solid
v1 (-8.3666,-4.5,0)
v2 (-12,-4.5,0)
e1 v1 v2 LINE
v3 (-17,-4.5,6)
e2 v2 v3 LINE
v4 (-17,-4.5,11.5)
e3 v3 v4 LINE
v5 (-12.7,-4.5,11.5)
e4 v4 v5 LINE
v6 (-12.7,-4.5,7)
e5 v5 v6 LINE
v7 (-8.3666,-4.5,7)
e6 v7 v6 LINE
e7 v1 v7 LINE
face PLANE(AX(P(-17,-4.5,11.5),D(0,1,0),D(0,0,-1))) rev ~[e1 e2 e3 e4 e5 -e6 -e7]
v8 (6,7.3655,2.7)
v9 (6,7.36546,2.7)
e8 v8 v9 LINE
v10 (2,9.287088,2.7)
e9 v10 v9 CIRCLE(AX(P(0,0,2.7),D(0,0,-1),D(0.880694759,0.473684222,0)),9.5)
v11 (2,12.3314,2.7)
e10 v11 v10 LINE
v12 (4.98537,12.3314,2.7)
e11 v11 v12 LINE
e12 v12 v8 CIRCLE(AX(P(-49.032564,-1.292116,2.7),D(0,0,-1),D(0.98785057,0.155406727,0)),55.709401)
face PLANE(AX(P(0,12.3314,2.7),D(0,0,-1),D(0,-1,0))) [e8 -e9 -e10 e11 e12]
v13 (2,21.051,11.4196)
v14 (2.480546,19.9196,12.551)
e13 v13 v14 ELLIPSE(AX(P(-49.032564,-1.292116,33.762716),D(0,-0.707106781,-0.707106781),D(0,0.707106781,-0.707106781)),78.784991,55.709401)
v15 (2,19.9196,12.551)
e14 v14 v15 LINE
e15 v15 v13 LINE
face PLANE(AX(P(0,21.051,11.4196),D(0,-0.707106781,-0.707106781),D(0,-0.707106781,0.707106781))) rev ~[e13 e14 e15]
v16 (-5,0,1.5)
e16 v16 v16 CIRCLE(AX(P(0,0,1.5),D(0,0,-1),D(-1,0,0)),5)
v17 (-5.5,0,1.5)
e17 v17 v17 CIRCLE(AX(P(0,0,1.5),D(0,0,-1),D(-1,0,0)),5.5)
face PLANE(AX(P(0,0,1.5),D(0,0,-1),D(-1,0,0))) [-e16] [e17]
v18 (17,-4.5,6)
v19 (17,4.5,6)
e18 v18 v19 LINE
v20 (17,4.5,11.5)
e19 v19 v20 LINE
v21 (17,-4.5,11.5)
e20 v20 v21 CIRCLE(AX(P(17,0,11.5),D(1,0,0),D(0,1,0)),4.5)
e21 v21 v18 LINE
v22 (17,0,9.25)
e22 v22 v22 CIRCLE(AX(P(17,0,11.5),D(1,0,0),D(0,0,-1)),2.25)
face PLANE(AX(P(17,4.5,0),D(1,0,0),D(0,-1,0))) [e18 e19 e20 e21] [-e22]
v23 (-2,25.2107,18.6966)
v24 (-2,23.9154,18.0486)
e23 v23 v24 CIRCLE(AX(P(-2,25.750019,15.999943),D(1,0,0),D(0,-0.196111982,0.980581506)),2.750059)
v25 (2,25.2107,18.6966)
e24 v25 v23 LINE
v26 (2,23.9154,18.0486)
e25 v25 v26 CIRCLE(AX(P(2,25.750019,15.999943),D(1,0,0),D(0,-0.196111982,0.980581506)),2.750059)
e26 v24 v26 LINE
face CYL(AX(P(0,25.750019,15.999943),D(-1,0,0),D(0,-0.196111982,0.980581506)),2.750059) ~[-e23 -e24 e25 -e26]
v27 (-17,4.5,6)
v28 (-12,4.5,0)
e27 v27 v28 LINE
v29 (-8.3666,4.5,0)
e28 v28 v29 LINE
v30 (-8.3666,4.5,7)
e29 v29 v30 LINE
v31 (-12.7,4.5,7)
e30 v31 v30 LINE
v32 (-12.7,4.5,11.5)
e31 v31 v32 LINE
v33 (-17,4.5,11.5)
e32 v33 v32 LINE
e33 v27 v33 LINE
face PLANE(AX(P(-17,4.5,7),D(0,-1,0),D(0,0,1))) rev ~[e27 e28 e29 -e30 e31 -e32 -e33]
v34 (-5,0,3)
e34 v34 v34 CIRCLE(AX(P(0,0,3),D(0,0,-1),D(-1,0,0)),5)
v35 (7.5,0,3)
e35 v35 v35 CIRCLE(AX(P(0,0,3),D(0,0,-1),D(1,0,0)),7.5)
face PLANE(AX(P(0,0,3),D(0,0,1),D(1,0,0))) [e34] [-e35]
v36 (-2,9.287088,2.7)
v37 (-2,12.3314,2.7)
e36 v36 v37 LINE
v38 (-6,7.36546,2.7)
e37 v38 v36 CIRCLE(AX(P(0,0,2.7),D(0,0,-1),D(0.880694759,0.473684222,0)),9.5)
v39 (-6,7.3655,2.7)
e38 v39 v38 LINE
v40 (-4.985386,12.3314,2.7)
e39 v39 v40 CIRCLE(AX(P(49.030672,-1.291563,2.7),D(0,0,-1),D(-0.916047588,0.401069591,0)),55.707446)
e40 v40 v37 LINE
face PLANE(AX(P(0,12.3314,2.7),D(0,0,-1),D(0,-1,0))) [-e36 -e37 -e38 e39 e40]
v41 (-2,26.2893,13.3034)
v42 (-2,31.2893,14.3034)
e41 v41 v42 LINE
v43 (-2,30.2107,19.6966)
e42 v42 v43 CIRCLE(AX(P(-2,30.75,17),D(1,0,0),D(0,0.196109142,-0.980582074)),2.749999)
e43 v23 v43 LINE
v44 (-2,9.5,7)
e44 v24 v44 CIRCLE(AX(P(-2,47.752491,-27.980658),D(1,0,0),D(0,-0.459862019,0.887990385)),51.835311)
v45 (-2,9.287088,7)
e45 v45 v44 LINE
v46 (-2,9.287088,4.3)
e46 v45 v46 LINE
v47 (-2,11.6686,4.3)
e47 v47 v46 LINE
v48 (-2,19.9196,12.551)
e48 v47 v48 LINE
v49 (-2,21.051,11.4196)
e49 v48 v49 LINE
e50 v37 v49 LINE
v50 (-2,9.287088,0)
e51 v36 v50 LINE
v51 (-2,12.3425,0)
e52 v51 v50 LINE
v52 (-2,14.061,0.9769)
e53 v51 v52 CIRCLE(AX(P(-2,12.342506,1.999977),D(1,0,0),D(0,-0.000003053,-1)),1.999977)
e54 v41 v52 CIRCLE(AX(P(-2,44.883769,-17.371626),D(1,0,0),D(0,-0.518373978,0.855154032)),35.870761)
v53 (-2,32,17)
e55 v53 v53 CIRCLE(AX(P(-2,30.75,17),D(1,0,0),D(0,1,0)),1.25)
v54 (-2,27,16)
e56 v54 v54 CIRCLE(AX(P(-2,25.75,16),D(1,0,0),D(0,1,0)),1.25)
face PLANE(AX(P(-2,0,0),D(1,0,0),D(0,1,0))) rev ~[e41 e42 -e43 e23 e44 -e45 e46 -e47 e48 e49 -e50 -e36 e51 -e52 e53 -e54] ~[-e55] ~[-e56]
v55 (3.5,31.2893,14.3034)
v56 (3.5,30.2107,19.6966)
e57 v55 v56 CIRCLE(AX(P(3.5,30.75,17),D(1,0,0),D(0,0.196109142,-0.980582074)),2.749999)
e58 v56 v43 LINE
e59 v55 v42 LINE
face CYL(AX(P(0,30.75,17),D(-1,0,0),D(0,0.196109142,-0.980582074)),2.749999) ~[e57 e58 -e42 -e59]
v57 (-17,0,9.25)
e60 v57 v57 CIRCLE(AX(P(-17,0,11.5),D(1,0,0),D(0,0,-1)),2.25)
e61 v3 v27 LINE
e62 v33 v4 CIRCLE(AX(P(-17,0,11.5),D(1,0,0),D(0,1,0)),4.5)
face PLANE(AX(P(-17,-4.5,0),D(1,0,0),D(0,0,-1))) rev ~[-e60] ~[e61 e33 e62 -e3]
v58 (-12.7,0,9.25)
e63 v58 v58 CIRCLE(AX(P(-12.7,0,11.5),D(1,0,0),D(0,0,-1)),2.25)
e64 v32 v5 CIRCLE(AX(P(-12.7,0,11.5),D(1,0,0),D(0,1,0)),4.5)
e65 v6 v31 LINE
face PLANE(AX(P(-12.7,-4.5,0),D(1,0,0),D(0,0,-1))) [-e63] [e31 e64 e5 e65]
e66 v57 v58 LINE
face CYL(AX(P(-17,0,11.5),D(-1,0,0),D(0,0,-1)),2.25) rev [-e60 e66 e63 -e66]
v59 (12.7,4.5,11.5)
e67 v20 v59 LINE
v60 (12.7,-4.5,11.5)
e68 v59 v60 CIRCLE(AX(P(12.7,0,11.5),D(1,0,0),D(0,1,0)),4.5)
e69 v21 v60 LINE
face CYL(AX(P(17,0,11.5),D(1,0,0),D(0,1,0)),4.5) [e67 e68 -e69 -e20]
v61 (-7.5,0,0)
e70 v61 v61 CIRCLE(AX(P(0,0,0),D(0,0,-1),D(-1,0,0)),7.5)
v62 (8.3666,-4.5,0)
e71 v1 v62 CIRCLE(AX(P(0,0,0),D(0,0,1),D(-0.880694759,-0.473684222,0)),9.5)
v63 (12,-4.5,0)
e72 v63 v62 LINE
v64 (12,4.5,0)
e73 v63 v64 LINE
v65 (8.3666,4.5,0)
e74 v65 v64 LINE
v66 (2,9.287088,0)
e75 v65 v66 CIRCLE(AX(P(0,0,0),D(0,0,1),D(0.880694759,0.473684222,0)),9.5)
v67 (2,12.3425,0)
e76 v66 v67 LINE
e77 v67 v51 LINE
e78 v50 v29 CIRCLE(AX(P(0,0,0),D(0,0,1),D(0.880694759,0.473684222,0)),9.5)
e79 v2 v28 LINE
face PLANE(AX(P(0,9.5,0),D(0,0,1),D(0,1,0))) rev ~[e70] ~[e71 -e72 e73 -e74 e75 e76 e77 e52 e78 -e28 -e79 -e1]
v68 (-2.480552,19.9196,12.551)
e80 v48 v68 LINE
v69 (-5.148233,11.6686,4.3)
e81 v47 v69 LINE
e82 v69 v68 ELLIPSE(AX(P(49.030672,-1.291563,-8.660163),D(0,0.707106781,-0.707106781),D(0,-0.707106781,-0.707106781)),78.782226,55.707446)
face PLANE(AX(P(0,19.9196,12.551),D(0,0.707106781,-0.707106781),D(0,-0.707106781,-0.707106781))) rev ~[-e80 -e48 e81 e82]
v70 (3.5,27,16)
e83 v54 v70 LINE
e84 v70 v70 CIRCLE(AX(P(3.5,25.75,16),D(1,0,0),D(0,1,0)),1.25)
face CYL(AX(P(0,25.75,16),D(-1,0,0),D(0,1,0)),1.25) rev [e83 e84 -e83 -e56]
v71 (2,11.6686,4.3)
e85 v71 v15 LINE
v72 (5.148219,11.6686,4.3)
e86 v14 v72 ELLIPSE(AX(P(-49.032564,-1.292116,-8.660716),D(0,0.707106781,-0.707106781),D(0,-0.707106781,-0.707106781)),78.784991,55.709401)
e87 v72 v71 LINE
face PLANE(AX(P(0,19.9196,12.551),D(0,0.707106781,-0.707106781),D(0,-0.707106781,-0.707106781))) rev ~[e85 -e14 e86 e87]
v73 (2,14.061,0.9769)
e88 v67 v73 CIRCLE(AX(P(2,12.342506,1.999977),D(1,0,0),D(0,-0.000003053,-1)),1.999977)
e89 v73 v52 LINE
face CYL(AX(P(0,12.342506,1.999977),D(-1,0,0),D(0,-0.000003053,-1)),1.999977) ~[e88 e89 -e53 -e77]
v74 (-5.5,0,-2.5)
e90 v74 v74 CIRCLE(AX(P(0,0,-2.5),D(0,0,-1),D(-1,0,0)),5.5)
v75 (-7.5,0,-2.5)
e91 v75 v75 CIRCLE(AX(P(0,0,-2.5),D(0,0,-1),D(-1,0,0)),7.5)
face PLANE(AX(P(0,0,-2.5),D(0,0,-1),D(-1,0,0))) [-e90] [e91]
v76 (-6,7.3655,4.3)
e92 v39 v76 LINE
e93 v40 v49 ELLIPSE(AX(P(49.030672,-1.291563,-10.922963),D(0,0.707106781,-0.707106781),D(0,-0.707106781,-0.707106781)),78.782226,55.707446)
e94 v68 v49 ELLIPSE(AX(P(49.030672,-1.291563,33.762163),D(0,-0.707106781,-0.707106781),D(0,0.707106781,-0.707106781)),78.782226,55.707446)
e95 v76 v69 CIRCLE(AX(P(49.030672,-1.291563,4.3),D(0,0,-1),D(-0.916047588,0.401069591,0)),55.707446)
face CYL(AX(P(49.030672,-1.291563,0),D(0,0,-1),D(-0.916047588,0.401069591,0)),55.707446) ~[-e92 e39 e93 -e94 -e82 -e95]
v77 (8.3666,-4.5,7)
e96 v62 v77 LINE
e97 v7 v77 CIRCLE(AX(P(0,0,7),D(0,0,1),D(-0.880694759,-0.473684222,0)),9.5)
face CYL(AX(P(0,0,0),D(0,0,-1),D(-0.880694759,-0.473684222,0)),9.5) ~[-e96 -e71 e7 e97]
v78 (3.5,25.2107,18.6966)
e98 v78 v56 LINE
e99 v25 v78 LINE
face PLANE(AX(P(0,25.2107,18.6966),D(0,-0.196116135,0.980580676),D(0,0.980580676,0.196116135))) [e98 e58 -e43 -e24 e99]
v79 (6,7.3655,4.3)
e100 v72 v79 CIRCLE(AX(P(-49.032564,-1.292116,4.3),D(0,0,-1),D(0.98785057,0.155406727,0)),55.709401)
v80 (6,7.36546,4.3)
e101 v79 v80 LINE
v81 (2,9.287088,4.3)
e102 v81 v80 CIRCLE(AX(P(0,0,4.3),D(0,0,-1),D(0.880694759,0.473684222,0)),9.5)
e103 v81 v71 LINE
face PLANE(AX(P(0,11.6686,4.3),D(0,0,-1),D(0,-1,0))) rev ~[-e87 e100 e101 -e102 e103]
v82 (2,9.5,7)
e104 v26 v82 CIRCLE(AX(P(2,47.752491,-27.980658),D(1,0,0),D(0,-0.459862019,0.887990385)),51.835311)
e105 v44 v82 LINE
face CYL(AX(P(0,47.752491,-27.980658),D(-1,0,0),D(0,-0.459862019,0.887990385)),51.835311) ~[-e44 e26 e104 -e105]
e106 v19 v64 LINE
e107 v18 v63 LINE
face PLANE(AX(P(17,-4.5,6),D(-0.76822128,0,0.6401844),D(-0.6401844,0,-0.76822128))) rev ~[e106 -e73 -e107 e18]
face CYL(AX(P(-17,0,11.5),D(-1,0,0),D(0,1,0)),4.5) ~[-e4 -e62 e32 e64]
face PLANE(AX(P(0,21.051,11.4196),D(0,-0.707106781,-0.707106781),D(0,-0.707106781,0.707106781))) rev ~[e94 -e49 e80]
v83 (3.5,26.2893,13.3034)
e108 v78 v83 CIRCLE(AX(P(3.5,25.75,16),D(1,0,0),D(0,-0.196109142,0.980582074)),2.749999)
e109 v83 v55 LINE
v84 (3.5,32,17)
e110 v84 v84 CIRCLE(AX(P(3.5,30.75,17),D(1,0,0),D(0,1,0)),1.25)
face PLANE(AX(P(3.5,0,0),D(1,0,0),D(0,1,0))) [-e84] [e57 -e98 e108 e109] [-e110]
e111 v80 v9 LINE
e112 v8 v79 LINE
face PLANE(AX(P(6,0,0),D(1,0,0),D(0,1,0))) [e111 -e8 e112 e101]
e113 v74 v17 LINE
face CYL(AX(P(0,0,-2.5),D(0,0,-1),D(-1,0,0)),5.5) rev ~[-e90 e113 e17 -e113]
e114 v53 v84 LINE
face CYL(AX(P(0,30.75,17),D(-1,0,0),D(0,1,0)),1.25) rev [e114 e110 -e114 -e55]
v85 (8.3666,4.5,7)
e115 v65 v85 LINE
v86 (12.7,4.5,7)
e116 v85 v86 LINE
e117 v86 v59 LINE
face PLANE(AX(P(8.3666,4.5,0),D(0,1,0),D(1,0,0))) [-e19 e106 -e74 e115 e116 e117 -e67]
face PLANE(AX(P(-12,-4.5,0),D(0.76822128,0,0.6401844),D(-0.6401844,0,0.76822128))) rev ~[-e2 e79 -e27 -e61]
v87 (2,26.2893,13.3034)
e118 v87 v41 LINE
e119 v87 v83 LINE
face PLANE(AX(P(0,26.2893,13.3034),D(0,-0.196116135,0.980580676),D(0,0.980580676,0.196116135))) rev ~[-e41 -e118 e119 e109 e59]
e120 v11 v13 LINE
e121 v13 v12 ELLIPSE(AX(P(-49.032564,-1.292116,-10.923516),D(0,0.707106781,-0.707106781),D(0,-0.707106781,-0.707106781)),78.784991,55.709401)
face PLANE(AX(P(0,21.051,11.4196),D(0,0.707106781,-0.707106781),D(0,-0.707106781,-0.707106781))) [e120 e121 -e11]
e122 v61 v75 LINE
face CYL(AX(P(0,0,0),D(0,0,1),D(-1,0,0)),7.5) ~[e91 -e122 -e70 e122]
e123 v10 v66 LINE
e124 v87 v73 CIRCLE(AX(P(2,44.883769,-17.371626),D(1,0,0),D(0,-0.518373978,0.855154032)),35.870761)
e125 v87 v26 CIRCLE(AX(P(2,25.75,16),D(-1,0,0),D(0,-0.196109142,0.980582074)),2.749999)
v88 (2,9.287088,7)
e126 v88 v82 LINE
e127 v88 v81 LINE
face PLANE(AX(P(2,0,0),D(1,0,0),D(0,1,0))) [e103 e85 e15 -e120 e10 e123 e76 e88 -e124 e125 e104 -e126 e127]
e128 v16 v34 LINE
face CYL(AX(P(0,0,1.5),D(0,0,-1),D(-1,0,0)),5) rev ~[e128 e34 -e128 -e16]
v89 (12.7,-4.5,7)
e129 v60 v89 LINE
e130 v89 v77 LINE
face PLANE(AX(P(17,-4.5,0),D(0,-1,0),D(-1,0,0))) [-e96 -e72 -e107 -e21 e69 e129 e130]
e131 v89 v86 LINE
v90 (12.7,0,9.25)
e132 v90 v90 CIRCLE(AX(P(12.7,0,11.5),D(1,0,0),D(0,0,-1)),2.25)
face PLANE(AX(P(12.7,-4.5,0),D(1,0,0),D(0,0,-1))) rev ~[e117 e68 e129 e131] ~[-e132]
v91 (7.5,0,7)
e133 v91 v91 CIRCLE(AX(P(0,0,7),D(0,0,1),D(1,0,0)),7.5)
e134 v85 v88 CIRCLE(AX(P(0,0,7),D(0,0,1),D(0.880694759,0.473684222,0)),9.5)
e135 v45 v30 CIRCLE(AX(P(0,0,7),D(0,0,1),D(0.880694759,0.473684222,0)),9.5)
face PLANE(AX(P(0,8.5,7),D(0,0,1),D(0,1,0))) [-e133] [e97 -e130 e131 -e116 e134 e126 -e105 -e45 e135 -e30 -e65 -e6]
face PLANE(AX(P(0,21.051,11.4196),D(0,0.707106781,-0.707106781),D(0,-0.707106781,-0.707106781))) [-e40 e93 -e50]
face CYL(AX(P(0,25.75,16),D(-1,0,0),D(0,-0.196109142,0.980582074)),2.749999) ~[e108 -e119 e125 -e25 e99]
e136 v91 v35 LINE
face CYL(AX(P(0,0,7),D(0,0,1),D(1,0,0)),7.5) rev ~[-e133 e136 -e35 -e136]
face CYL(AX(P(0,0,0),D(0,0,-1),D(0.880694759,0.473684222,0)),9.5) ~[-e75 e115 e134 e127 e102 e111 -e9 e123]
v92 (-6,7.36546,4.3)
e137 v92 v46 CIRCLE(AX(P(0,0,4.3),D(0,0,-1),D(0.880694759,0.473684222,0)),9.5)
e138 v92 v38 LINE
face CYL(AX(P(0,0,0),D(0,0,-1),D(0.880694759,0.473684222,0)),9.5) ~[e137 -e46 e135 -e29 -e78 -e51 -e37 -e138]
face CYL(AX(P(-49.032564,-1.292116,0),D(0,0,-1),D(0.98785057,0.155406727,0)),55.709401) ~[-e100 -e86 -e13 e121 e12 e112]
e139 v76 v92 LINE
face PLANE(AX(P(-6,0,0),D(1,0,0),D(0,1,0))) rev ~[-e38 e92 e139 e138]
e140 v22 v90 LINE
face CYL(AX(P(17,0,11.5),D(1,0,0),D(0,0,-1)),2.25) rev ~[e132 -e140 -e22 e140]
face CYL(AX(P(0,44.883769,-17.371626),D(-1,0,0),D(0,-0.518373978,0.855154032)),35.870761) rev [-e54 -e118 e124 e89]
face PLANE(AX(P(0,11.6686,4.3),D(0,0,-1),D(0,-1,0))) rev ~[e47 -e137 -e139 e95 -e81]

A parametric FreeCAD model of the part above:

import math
import FreeCAD as App
import Part
import Sketcher
from FreeCAD import Vector
Q = App.Units.Quantity


def add_polygon(sketch, points):
    """Adds a closed chain of lines whose ends are joined by coincident constraints."""
    first, n = sketch.GeometryCount, len(points)
    for a, b in zip(points, points[1:] + points[:1]):
        sketch.addGeometry(Part.LineSegment(App.Vector(*a, 0), App.Vector(*b, 0)), False)
    for i in range(n):
        sketch.addConstraint(Sketcher.Constraint("Coincident", first + i, 2, first + (i + 1) % n, 1))

doc = App.newDocument("Part")
body = doc.addObject("PartDesign::Body", "Body")
body.AllowCompound = True

sketch1 = doc.addObject("Sketcher::SketchObject", "Sketch")
body.addObject(sketch1)
sketch1.AttachmentSupport = (doc.XY_Plane, [""])
sketch1.MapMode = "FlatFace"
sketch1.addGeometry(Part.LineSegment(Vector(17, -4.5, 0), Vector(17, 4.5, 0)), False)
sketch1.addGeometry(Part.LineSegment(Vector(17, 4.5, 0), Vector(8.3666, 4.5, 0)), False)
sketch1.addGeometry(Part.ArcOfCircle(Part.Circle(Vector(0, 0, 0), Vector(0, 0, 1), 9.5), math.radians(28.273714), math.radians(151.726286)), False)
sketch1.addGeometry(Part.LineSegment(Vector(-8.3666, 4.5, 0), Vector(-17, 4.5, 0)), False)
sketch1.addGeometry(Part.LineSegment(Vector(-17, 4.5, 0), Vector(-17, -4.5, 0)), False)
sketch1.addGeometry(Part.LineSegment(Vector(-17, -4.5, 0), Vector(-8.3666, -4.5, 0)), False)
sketch1.addGeometry(Part.ArcOfCircle(Part.Circle(Vector(0, 0, 0), Vector(0, 0, 1), 9.5), math.radians(-151.726286), math.radians(-28.273714)), False)
sketch1.addGeometry(Part.LineSegment(Vector(8.3666, -4.5, 0), Vector(17, -4.5, 0)), False)
sketch1.addConstraint(Sketcher.Constraint("Coincident", 0, 2, 1, 1))
sketch1.addConstraint(Sketcher.Constraint("Coincident", 1, 2, 2, 1))
sketch1.addConstraint(Sketcher.Constraint("Coincident", 2, 2, 3, 1))
sketch1.addConstraint(Sketcher.Constraint("Coincident", 3, 2, 4, 1))
sketch1.addConstraint(Sketcher.Constraint("Coincident", 4, 2, 5, 1))
sketch1.addConstraint(Sketcher.Constraint("Coincident", 5, 2, 6, 1))
sketch1.addConstraint(Sketcher.Constraint("Coincident", 6, 2, 7, 1))
sketch1.addConstraint(Sketcher.Constraint("Coincident", 7, 2, 0, 1))
sketch1.addConstraint(Sketcher.Constraint("Vertical", 0))
sketch1.addConstraint(Sketcher.Constraint("Horizontal", 1))
sketch1.addConstraint(Sketcher.Constraint("Horizontal", 3))
sketch1.addConstraint(Sketcher.Constraint("Vertical", 4))
sketch1.addConstraint(Sketcher.Constraint("Horizontal", 5))
sketch1.addConstraint(Sketcher.Constraint("Horizontal", 7))
sketch1.addConstraint(Sketcher.Constraint("Coincident", 2, 3, -1, 1))
sketch1.addConstraint(Sketcher.Constraint("Coincident", 6, 3, -1, 1))
sketch1.addConstraint(Sketcher.Constraint("Equal", 2, 6))
sketch1.addConstraint(Sketcher.Constraint("Symmetric", 0, 2, 4, 2, -1, 1))
sketch1.addConstraint(Sketcher.Constraint("Horizontal", 1, 2, 2, 2))
sketch1.addConstraint(Sketcher.Constraint("Horizontal", 5, 2, 6, 2))
sketch1.addConstraint(Sketcher.Constraint("Radius", 2, 9.5))
sketch1.addConstraint(Sketcher.Constraint("DistanceY", 0, 1, 0, 2, 9.0))
sketch1.addConstraint(Sketcher.Constraint("DistanceX", 3, 2, 0, 2, 34.0))
pad1 = doc.addObject("PartDesign::Pad", "Pad")
body.addObject(pad1)
pad1.Profile = sketch1
pad1.Length = 7

sketch2 = doc.addObject("Sketcher::SketchObject", "Sketch001")
body.addObject(sketch2)
sketch2.AttachmentSupport = (doc.YZ_Plane, [""])
sketch2.MapMode = "FlatFace"
sketch2.AttachmentOffset = App.Placement(Vector(0, 0, 17), App.Rotation())
sketch2.addGeometry(Part.LineSegment(Vector(4.5, 7, 0), Vector(4.5, 11.5, 0)), False)
sketch2.addGeometry(Part.ArcOfCircle(Part.Circle(Vector(0, 11.5, 0), Vector(0, 0, 1), 4.5), math.radians(0), math.radians(180)), False)
sketch2.addGeometry(Part.LineSegment(Vector(-4.5, 11.5, 0), Vector(-4.5, 7, 0)), False)
sketch2.addGeometry(Part.LineSegment(Vector(-4.5, 7, 0), Vector(4.5, 7, 0)), False)
sketch2.addGeometry(Part.Circle(Vector(0, 11.5, 0), Vector(0, 0, 1), 2.25), False)
sketch2.addConstraint(Sketcher.Constraint("Tangent", 0, 2, 1, 1))
sketch2.addConstraint(Sketcher.Constraint("Tangent", 1, 2, 2, 1))
sketch2.addConstraint(Sketcher.Constraint("Coincident", 2, 2, 3, 1))
sketch2.addConstraint(Sketcher.Constraint("Coincident", 3, 2, 0, 1))
sketch2.addConstraint(Sketcher.Constraint("Vertical", 0))
sketch2.addConstraint(Sketcher.Constraint("Vertical", 2))
sketch2.addConstraint(Sketcher.Constraint("Horizontal", 3))
sketch2.addConstraint(Sketcher.Constraint("Coincident", 4, 3, 1, 3))
sketch2.addConstraint(Sketcher.Constraint("PointOnObject", 1, 3, -2))
sketch2.addConstraint(Sketcher.Constraint("Diameter", 4, 4.5))
sketch2.addConstraint(Sketcher.Constraint("Radius", 1, 4.5))
sketch2.addConstraint(Sketcher.Constraint("DistanceY", 0, 1, 0, 2, 4.5))
sketch2.addConstraint(Sketcher.Constraint("DistanceY", -1, 1, 2, 2, 7.0))
pad2 = doc.addObject("PartDesign::Pad", "Pad001")
body.addObject(pad2)
pad2.Profile = sketch2
pad2.Length = 4.3
pad2.Reversed = True

sketch3 = doc.addObject("Sketcher::SketchObject", "Sketch002")
body.addObject(sketch3)
sketch3.AttachmentSupport = (doc.YZ_Plane, [""])
sketch3.MapMode = "FlatFace"
sketch3.AttachmentOffset = App.Placement(Vector(0, 0, -17), App.Rotation())
sketch3.addGeometry(Part.LineSegment(Vector(4.5, 7, 0), Vector(4.5, 11.5, 0)), False)
sketch3.addGeometry(Part.ArcOfCircle(Part.Circle(Vector(0, 11.5, 0), Vector(0, 0, 1), 4.5), math.radians(0), math.radians(180)), False)
sketch3.addGeometry(Part.LineSegment(Vector(-4.5, 11.5, 0), Vector(-4.5, 7, 0)), False)
sketch3.addGeometry(Part.LineSegment(Vector(-4.5, 7, 0), Vector(4.5, 7, 0)), False)
sketch3.addGeometry(Part.Circle(Vector(0, 11.5, 0), Vector(0, 0, 1), 2.25), False)
sketch3.addConstraint(Sketcher.Constraint("Tangent", 0, 2, 1, 1))
sketch3.addConstraint(Sketcher.Constraint("Tangent", 1, 2, 2, 1))
sketch3.addConstraint(Sketcher.Constraint("Coincident", 2, 2, 3, 1))
sketch3.addConstraint(Sketcher.Constraint("Coincident", 3, 2, 0, 1))
sketch3.addConstraint(Sketcher.Constraint("Vertical", 0))
sketch3.addConstraint(Sketcher.Constraint("Vertical", 2))
sketch3.addConstraint(Sketcher.Constraint("Horizontal", 3))
sketch3.addConstraint(Sketcher.Constraint("Coincident", 4, 3, 1, 3))
sketch3.addConstraint(Sketcher.Constraint("PointOnObject", 1, 3, -2))
sketch3.addConstraint(Sketcher.Constraint("Diameter", 4, 4.5))
sketch3.addConstraint(Sketcher.Constraint("Radius", 1, 4.5))
sketch3.addConstraint(Sketcher.Constraint("DistanceY", 0, 1, 0, 2, 4.5))
sketch3.addConstraint(Sketcher.Constraint("DistanceY", -1, 1, 2, 2, 7.0))
pad3 = doc.addObject("PartDesign::Pad", "Pad002")
body.addObject(pad3)
pad3.Profile = sketch3
pad3.Length = 4.3

sketch4 = doc.addObject("Sketcher::SketchObject", "Sketch003")
body.addObject(sketch4)
sketch4.AttachmentSupport = (doc.XZ_Plane, [""])
sketch4.MapMode = "FlatFace"
sketch4.AttachmentOffset = App.Placement(Vector(0, 0, 4.5), App.Rotation())
add_polygon(sketch4, [(-12, 0), (-17, 6), (-17, 0)])
add_polygon(sketch4, [(17, 6), (12, 0), (17, 0)])
sketch4.addConstraint(Sketcher.Constraint("Vertical", 1))
sketch4.addConstraint(Sketcher.Constraint("Horizontal", 2))
sketch4.addConstraint(Sketcher.Constraint("Horizontal", 4))
sketch4.addConstraint(Sketcher.Constraint("Vertical", 5))
sketch4.addConstraint(Sketcher.Constraint("Symmetric", 2, 2, 3, 2, -1, 1))
sketch4.addConstraint(Sketcher.Constraint("Symmetric", 1, 2, 4, 2, -2))
sketch4.addConstraint(Sketcher.Constraint("Horizontal", 0, 2, 5, 2))
sketch4.addConstraint(Sketcher.Constraint("DistanceX", 2, 1, 2, 2, 5.0))
sketch4.addConstraint(Sketcher.Constraint("DistanceY", 1, 2, 1, 1, 6.0))
sketch4.addConstraint(Sketcher.Constraint("DistanceX", 0, 2, -1, 1, 17.0))
pocket1 = doc.addObject("PartDesign::Pocket", "Pocket")
body.addObject(pocket1)
pocket1.Profile = sketch4
pocket1.Length = 9

sketch5 = doc.addObject("Sketcher::SketchObject", "Sketch004")
body.addObject(sketch5)
sketch5.AttachmentSupport = (doc.XY_Plane, [""])
sketch5.MapMode = "FlatFace"
sketch5.addGeometry(Part.Circle(Vector(0, 0, 0), Vector(0, 0, 1), 7.5), False)
sketch5.addConstraint(Sketcher.Constraint("Coincident", 0, 3, -1, 1))
sketch5.addConstraint(Sketcher.Constraint("Diameter", 0, 15.0))
pad4 = doc.addObject("PartDesign::Pad", "Pad003")
body.addObject(pad4)
pad4.Profile = sketch5
pad4.Length = 2.5
pad4.Reversed = True

sketch6 = doc.addObject("Sketcher::SketchObject", "Sketch005")
body.addObject(sketch6)
sketch6.AttachmentSupport = (doc.XY_Plane, [""])
sketch6.MapMode = "FlatFace"
sketch6.AttachmentOffset = App.Placement(Vector(0, 0, 7), App.Rotation())
sketch6.addGeometry(Part.Circle(Vector(0, 0, 0), Vector(0, 0, 1), 7.5), False)
sketch6.addConstraint(Sketcher.Constraint("Coincident", 0, 3, -1, 1))
sketch6.addConstraint(Sketcher.Constraint("Diameter", 0, 15.0))
pocket2 = doc.addObject("PartDesign::Pocket", "Pocket001")
body.addObject(pocket2)
pocket2.Profile = sketch6
pocket2.Length = 4

sketch7 = doc.addObject("Sketcher::SketchObject", "Sketch006")
body.addObject(sketch7)
sketch7.AttachmentSupport = (doc.XY_Plane, [""])
sketch7.MapMode = "FlatFace"
sketch7.AttachmentOffset = App.Placement(Vector(0, 0, -2.5), App.Rotation())
sketch7.addGeometry(Part.Circle(Vector(0, 0, 0), Vector(0, 0, 1), 5.5), False)
sketch7.addConstraint(Sketcher.Constraint("Coincident", 0, 3, -1, 1))
sketch7.addConstraint(Sketcher.Constraint("Diameter", 0, 11.0))
pocket3 = doc.addObject("PartDesign::Pocket", "Pocket002")
body.addObject(pocket3)
pocket3.Profile = sketch7
pocket3.Length = 4
pocket3.Reversed = True

sketch8 = doc.addObject("Sketcher::SketchObject", "Sketch007")
body.addObject(sketch8)
sketch8.AttachmentSupport = (doc.XY_Plane, [""])
sketch8.MapMode = "FlatFace"
sketch8.AttachmentOffset = App.Placement(Vector(0, 0, 1.5), App.Rotation())
sketch8.addGeometry(Part.Circle(Vector(0, 0, 0), Vector(0, 0, 1), 5), False)
sketch8.addConstraint(Sketcher.Constraint("Coincident", 0, 3, -1, 1))
sketch8.addConstraint(Sketcher.Constraint("Diameter", 0, 10.0))
pocket4 = doc.addObject("PartDesign::Pocket", "Pocket003")
body.addObject(pocket4)
pocket4.Profile = sketch8
pocket4.Type = "UpToFirst"
pocket4.Reversed = True

sketch9 = doc.addObject("Sketcher::SketchObject", "Sketch008")
body.addObject(sketch9)
sketch9.AttachmentSupport = (doc.YZ_Plane, [""])
sketch9.MapMode = "FlatFace"
sketch9.addGeometry(Part.LineSegment(Vector(26.2893, 13.3034, 0), Vector(31.2893, 14.3034, 0)), False)
sketch9.addGeometry(Part.ArcOfCircle(Part.Circle(Vector(30.75, 17, 0), Vector(0, 0, 1), 2.749999), math.radians(-78.690476), math.radians(101.309524)), False)
sketch9.addGeometry(Part.LineSegment(Vector(30.2107, 19.6966, 0), Vector(25.2107, 18.6966, 0)), False)
sketch9.addGeometry(Part.ArcOfCircle(Part.Circle(Vector(25.75, 16, 0), Vector(0, 0, 1), 2.749999), math.radians(101.309524), math.radians(131.845667)), False)
sketch9.addGeometry(Part.ArcOfCircle(Part.Circle(Vector(47.7522, -27.9802, 0), Vector(0, 0, 1), 51.834771), math.radians(117.378151), math.radians(137.558256)), False)
sketch9.addGeometry(Part.LineSegment(Vector(9.5, 7, 0), Vector(9.5, 0, 0)), False)
sketch9.addGeometry(Part.LineSegment(Vector(9.5, 0, 0), Vector(12.3425, 0, 0)), False)
sketch9.addGeometry(Part.ArcOfCircle(Part.Circle(Vector(12.3425, 2, 0), Vector(0, 0, 1), 2), math.radians(-90), math.radians(-30.767233)), False)
sketch9.addGeometry(Part.ArcOfCircle(Part.Circle(Vector(44.8843, -17.3723, 0), Vector(0, 0, 1), 35.871613), math.radians(121.223411), math.radians(149.234539)), False)
sketch9.addGeometry(Part.Circle(Vector(25.75, 16, 0), Vector(0, 0, 1), 1.25), False)
sketch9.addGeometry(Part.Circle(Vector(30.75, 17, 0), Vector(0, 0, 1), 1.25), False)
sketch9.addConstraint(Sketcher.Constraint("Tangent", 0, 2, 1, 1))
sketch9.addConstraint(Sketcher.Constraint("Tangent", 1, 2, 2, 1))
sketch9.addConstraint(Sketcher.Constraint("Tangent", 2, 2, 3, 1))
sketch9.addConstraint(Sketcher.Constraint("Coincident", 3, 2, 4, 1))
sketch9.addConstraint(Sketcher.Constraint("Coincident", 4, 2, 5, 1))
sketch9.addConstraint(Sketcher.Constraint("Coincident", 5, 2, 6, 1))
sketch9.addConstraint(Sketcher.Constraint("Tangent", 6, 2, 7, 1))
sketch9.addConstraint(Sketcher.Constraint("Tangent", 7, 2, 8, 2))
sketch9.addConstraint(Sketcher.Constraint("Coincident", 8, 1, 0, 1))
sketch9.addConstraint(Sketcher.Constraint("Vertical", 5))
sketch9.addConstraint(Sketcher.Constraint("Horizontal", 6))
sketch9.addConstraint(Sketcher.Constraint("Coincident", 9, 3, 3, 3))
sketch9.addConstraint(Sketcher.Constraint("Coincident", 10, 3, 1, 3))
sketch9.addConstraint(Sketcher.Constraint("Equal", 1, 3))
sketch9.addConstraint(Sketcher.Constraint("Equal", 9, 10))
sketch9.addConstraint(Sketcher.Constraint("PointOnObject", 5, 2, -1))
sketch9.addConstraint(Sketcher.Constraint("Parallel", 0, 2))
sketch9.addConstraint(Sketcher.Constraint("Equal", 0, 2))
sketch9.addConstraint(Sketcher.Constraint("Radius", 7, 2.0))
sketch9.addConstraint(Sketcher.Constraint("Diameter", 9, 2.5))
sketch9.addConstraint(Sketcher.Constraint("DistanceY", 5, 2, 5, 1, 7.0))
sketch9.addConstraint(Sketcher.Constraint("Radius", 1, 2.75))
sketch9.addConstraint(Sketcher.Constraint("DistanceY", -1, 1, 1, 3, 17.0))
sketch9.addConstraint(Sketcher.Constraint("DistanceY", -1, 1, 3, 3, 16.0))
sketch9.addConstraint(Sketcher.Constraint("DistanceX", -1, 1, 4, 2, 9.5))
sketch9.addConstraint(Sketcher.Constraint("Radius", 4, 51.8348))
sketch9.addConstraint(Sketcher.Constraint("Radius", 8, 35.8716))
sketch9.addConstraint(Sketcher.Constraint("DistanceX", -1, 1, 1, 3, 30.75))
sketch9.addConstraint(Sketcher.Constraint("DistanceX", -1, 1, 3, 3, 25.75))
sketch9.addConstraint(Sketcher.Constraint("DistanceX", 6, 1, 6, 2, 2.8425))
sketch9.addConstraint(Sketcher.Constraint("DistanceX", 8, 3, 4, 3, 2.868))
pad5 = doc.addObject("PartDesign::Pad", "Pad004")
body.addObject(pad5)
pad5.Profile = sketch9
pad5.Length = 4
pad5.Midplane = True

sketch10 = doc.addObject("Sketcher::SketchObject", "Sketch009")
body.addObject(sketch10)
sketch10.AttachmentSupport = (doc.YZ_Plane, [""])
sketch10.MapMode = "FlatFace"
sketch10.addGeometry(Part.LineSegment(Vector(30.2107, 19.6966, 0), Vector(25.2107, 18.6966, 0)), False)
sketch10.addGeometry(Part.ArcOfCircle(Part.Circle(Vector(25.75, 16, 0), Vector(0, 0, 1), 2.749999), math.radians(101.309524), math.radians(281.309524)), False)
sketch10.addGeometry(Part.LineSegment(Vector(26.2893, 13.3034, 0), Vector(31.2893, 14.3034, 0)), False)
sketch10.addGeometry(Part.ArcOfCircle(Part.Circle(Vector(30.75, 17, 0), Vector(0, 0, 1), 2.749999), math.radians(-78.690476), math.radians(101.309524)), False)
sketch10.addGeometry(Part.Circle(Vector(25.75, 16, 0), Vector(0, 0, 1), 1.25), False)
sketch10.addGeometry(Part.Circle(Vector(30.75, 17, 0), Vector(0, 0, 1), 1.25), False)
sketch10.addConstraint(Sketcher.Constraint("Tangent", 0, 2, 1, 1))
sketch10.addConstraint(Sketcher.Constraint("Tangent", 1, 2, 2, 1))
sketch10.addConstraint(Sketcher.Constraint("Tangent", 2, 2, 3, 1))
sketch10.addConstraint(Sketcher.Constraint("Tangent", 3, 2, 0, 1))
sketch10.addConstraint(Sketcher.Constraint("Coincident", 4, 3, 1, 3))
sketch10.addConstraint(Sketcher.Constraint("Coincident", 5, 3, 3, 3))
sketch10.addConstraint(Sketcher.Constraint("Equal", 1, 3))
sketch10.addConstraint(Sketcher.Constraint("Equal", 4, 5))
sketch10.addConstraint(Sketcher.Constraint("Diameter", 4, 2.5))
sketch10.addConstraint(Sketcher.Constraint("Radius", 1, 2.75))
sketch10.addConstraint(Sketcher.Constraint("DistanceY", -1, 1, 1, 3, 16.0))
sketch10.addConstraint(Sketcher.Constraint("DistanceY", -1, 1, 3, 3, 17.0))
sketch10.addConstraint(Sketcher.Constraint("DistanceX", 1, 3, 3, 3, 5.0))
sketch10.addConstraint(Sketcher.Constraint("DistanceX", -1, 1, 1, 3, 25.75))
pad6 = doc.addObject("PartDesign::Pad", "Pad005")
body.addObject(pad6)
pad6.Profile = sketch10
pad6.Length = 3.5

sketch11 = doc.addObject("Sketcher::SketchObject", "Sketch010")
body.addObject(sketch11)
sketch11.AttachmentSupport = (doc.YZ_Plane, [""])
sketch11.MapMode = "FlatFace"
add_polygon(sketch11, [(0, 4.3), (0, 2.7), (12.3314, 2.7), (21.051, 11.4196), (19.9196, 12.551), (11.6686, 4.3)])
sketch11.addConstraint(Sketcher.Constraint("Vertical", 0))
sketch11.addConstraint(Sketcher.Constraint("Horizontal", 1))
sketch11.addConstraint(Sketcher.Constraint("Horizontal", 5))
sketch11.addConstraint(Sketcher.Constraint("PointOnObject", 0, 2, -2))
sketch11.addConstraint(Sketcher.Constraint("Perpendicular", 2, 3))
sketch11.addConstraint(Sketcher.Constraint("Perpendicular", 3, 4))
sketch11.addConstraint(Sketcher.Constraint("Angle", 2, Q("45 deg")))
sketch11.addConstraint(Sketcher.Constraint("DistanceY", 0, 2, 0, 1, 1.6))
sketch11.addConstraint(Sketcher.Constraint("Distance", 3, 1.6))
sketch11.addConstraint(Sketcher.Constraint("DistanceY", -1, 1, 0, 2, 2.7))
sketch11.addConstraint(Sketcher.Constraint("DistanceX", 1, 1, 1, 2, 12.3314))
sketch11.addConstraint(Sketcher.Constraint("DistanceX", -1, 1, 2, 2, 21.051))
pad7 = doc.addObject("PartDesign::Pad", "Pad006")
body.addObject(pad7)
pad7.Profile = sketch11
pad7.Length = 12
pad7.Midplane = True

sketch12 = doc.addObject("Sketcher::SketchObject", "Sketch011")
body.addObject(sketch12)
sketch12.AttachmentSupport = (doc.XY_Plane, [""])
sketch12.MapMode = "FlatFace"
sketch12.AttachmentOffset = App.Placement(Vector(0, 0, 7), App.Rotation())
sketch12.addGeometry(Part.Circle(Vector(0, 0, 0), Vector(0, 0, 1), 7.5), False)
sketch12.addConstraint(Sketcher.Constraint("Coincident", 0, 3, -1, 1))
sketch12.addConstraint(Sketcher.Constraint("Diameter", 0, 15.0))
pocket5 = doc.addObject("PartDesign::Pocket", "Pocket004")
body.addObject(pocket5)
pocket5.Profile = sketch12
pocket5.Length = 4

sketch13 = doc.addObject("Sketcher::SketchObject", "Sketch012")
body.addObject(sketch13)
sketch13.AttachmentSupport = (doc.XY_Plane, [""])
sketch13.MapMode = "FlatFace"
sketch13.AttachmentOffset = App.Placement(Vector(0, 0, 1.5), App.Rotation())
sketch13.addGeometry(Part.Circle(Vector(0, 0, 0), Vector(0, 0, 1), 5), False)
sketch13.addConstraint(Sketcher.Constraint("Coincident", 0, 3, -1, 1))
sketch13.addConstraint(Sketcher.Constraint("Diameter", 0, 10.0))
pocket6 = doc.addObject("PartDesign::Pocket", "Pocket005")
body.addObject(pocket6)
pocket6.Profile = sketch13
pocket6.Type = "ThroughAll"
pocket6.Reversed = True

sketch14 = doc.addObject("Sketcher::SketchObject", "Sketch013")
body.addObject(sketch14)
sketch14.AttachmentSupport = (doc.XY_Plane, [""])
sketch14.MapMode = "FlatFace"
sketch14.addGeometry(Part.ArcOfCircle(Part.Circle(Vector(-49.0316, -1.2919, 0), Vector(0, 0, 1), 55.708416), math.radians(8.940321), math.radians(23.644996)), False)
sketch14.addGeometry(Part.LineSegment(Vector(6, 7.3655, 0), Vector(6, 21.051, 0)), False)
sketch14.addGeometry(Part.LineSegment(Vector(6, 21.051, 0), Vector(2, 21.051, 0)), False)
sketch14.addGeometry(Part.ArcOfCircle(Part.Circle(Vector(49.0316, -1.2919, 0), Vector(0, 0, 1), 55.708432), math.radians(156.355004), math.radians(171.059679)), False)
sketch14.addGeometry(Part.LineSegment(Vector(-2, 21.051, 0), Vector(-6, 21.051, 0)), False)
sketch14.addGeometry(Part.LineSegment(Vector(-6, 21.051, 0), Vector(-6, 7.3655, 0)), False)
sketch14.addConstraint(Sketcher.Constraint("Coincident", 0, 1, 1, 1))
sketch14.addConstraint(Sketcher.Constraint("Coincident", 1, 2, 2, 1))
sketch14.addConstraint(Sketcher.Constraint("Coincident", 2, 2, 0, 2))
sketch14.addConstraint(Sketcher.Constraint("Coincident", 3, 1, 4, 1))
sketch14.addConstraint(Sketcher.Constraint("Coincident", 4, 2, 5, 1))
sketch14.addConstraint(Sketcher.Constraint("Coincident", 5, 2, 3, 2))
sketch14.addConstraint(Sketcher.Constraint("Vertical", 1))
sketch14.addConstraint(Sketcher.Constraint("Horizontal", 2))
sketch14.addConstraint(Sketcher.Constraint("Horizontal", 4))
sketch14.addConstraint(Sketcher.Constraint("Vertical", 5))
sketch14.addConstraint(Sketcher.Constraint("Equal", 0, 3))
sketch14.addConstraint(Sketcher.Constraint("Symmetric", 0, 3, 3, 3, -2))
sketch14.addConstraint(Sketcher.Constraint("Symmetric", 1, 2, 4, 2, -2))
sketch14.addConstraint(Sketcher.Constraint("DistanceX", 2, 2, 2, 1, 4.0))
sketch14.addConstraint(Sketcher.Constraint("DistanceX", -1, 1, 0, 1, 6.0))
sketch14.addConstraint(Sketcher.Constraint("Radius", 0, 55.7084))
sketch14.addConstraint(Sketcher.Constraint("DistanceY", 1, 1, 1, 2, 13.6855))
sketch14.addConstraint(Sketcher.Constraint("DistanceY", 0, 3, -1, 1, 1.292))
pocket7 = doc.addObject("PartDesign::Pocket", "Pocket006")
body.addObject(pocket7)
pocket7.Profile = sketch14
pocket7.Type = "UpToFirst"
pocket7.Reversed = True

sketch15 = doc.addObject("Sketcher::SketchObject", "Sketch014")
body.addObject(sketch15)
sketch15.AttachmentSupport = (doc.YZ_Plane, [""])
sketch15.MapMode = "FlatFace"
add_polygon(sketch15, [(9.5, 7), (8.5, 7), (8.5, 0), (9.5, 0)])
sketch15.addConstraint(Sketcher.Constraint("Horizontal", 0))
sketch15.addConstraint(Sketcher.Constraint("Vertical", 1))
sketch15.addConstraint(Sketcher.Constraint("Horizontal", 2))
sketch15.addConstraint(Sketcher.Constraint("Vertical", 3))
sketch15.addConstraint(Sketcher.Constraint("PointOnObject", 1, 2, -1))
sketch15.addConstraint(Sketcher.Constraint("DistanceX", 0, 2, 0, 1, 1.0))
sketch15.addConstraint(Sketcher.Constraint("DistanceY", 1, 2, 1, 1, 7.0))
sketch15.addConstraint(Sketcher.Constraint("DistanceX", -1, 1, 2, 2, 9.5))
pad8 = doc.addObject("PartDesign::Pad", "Pad007")
body.addObject(pad8)
pad8.Profile = sketch15
pad8.Length = 4
pad8.Midplane = True

doc.recompute()
